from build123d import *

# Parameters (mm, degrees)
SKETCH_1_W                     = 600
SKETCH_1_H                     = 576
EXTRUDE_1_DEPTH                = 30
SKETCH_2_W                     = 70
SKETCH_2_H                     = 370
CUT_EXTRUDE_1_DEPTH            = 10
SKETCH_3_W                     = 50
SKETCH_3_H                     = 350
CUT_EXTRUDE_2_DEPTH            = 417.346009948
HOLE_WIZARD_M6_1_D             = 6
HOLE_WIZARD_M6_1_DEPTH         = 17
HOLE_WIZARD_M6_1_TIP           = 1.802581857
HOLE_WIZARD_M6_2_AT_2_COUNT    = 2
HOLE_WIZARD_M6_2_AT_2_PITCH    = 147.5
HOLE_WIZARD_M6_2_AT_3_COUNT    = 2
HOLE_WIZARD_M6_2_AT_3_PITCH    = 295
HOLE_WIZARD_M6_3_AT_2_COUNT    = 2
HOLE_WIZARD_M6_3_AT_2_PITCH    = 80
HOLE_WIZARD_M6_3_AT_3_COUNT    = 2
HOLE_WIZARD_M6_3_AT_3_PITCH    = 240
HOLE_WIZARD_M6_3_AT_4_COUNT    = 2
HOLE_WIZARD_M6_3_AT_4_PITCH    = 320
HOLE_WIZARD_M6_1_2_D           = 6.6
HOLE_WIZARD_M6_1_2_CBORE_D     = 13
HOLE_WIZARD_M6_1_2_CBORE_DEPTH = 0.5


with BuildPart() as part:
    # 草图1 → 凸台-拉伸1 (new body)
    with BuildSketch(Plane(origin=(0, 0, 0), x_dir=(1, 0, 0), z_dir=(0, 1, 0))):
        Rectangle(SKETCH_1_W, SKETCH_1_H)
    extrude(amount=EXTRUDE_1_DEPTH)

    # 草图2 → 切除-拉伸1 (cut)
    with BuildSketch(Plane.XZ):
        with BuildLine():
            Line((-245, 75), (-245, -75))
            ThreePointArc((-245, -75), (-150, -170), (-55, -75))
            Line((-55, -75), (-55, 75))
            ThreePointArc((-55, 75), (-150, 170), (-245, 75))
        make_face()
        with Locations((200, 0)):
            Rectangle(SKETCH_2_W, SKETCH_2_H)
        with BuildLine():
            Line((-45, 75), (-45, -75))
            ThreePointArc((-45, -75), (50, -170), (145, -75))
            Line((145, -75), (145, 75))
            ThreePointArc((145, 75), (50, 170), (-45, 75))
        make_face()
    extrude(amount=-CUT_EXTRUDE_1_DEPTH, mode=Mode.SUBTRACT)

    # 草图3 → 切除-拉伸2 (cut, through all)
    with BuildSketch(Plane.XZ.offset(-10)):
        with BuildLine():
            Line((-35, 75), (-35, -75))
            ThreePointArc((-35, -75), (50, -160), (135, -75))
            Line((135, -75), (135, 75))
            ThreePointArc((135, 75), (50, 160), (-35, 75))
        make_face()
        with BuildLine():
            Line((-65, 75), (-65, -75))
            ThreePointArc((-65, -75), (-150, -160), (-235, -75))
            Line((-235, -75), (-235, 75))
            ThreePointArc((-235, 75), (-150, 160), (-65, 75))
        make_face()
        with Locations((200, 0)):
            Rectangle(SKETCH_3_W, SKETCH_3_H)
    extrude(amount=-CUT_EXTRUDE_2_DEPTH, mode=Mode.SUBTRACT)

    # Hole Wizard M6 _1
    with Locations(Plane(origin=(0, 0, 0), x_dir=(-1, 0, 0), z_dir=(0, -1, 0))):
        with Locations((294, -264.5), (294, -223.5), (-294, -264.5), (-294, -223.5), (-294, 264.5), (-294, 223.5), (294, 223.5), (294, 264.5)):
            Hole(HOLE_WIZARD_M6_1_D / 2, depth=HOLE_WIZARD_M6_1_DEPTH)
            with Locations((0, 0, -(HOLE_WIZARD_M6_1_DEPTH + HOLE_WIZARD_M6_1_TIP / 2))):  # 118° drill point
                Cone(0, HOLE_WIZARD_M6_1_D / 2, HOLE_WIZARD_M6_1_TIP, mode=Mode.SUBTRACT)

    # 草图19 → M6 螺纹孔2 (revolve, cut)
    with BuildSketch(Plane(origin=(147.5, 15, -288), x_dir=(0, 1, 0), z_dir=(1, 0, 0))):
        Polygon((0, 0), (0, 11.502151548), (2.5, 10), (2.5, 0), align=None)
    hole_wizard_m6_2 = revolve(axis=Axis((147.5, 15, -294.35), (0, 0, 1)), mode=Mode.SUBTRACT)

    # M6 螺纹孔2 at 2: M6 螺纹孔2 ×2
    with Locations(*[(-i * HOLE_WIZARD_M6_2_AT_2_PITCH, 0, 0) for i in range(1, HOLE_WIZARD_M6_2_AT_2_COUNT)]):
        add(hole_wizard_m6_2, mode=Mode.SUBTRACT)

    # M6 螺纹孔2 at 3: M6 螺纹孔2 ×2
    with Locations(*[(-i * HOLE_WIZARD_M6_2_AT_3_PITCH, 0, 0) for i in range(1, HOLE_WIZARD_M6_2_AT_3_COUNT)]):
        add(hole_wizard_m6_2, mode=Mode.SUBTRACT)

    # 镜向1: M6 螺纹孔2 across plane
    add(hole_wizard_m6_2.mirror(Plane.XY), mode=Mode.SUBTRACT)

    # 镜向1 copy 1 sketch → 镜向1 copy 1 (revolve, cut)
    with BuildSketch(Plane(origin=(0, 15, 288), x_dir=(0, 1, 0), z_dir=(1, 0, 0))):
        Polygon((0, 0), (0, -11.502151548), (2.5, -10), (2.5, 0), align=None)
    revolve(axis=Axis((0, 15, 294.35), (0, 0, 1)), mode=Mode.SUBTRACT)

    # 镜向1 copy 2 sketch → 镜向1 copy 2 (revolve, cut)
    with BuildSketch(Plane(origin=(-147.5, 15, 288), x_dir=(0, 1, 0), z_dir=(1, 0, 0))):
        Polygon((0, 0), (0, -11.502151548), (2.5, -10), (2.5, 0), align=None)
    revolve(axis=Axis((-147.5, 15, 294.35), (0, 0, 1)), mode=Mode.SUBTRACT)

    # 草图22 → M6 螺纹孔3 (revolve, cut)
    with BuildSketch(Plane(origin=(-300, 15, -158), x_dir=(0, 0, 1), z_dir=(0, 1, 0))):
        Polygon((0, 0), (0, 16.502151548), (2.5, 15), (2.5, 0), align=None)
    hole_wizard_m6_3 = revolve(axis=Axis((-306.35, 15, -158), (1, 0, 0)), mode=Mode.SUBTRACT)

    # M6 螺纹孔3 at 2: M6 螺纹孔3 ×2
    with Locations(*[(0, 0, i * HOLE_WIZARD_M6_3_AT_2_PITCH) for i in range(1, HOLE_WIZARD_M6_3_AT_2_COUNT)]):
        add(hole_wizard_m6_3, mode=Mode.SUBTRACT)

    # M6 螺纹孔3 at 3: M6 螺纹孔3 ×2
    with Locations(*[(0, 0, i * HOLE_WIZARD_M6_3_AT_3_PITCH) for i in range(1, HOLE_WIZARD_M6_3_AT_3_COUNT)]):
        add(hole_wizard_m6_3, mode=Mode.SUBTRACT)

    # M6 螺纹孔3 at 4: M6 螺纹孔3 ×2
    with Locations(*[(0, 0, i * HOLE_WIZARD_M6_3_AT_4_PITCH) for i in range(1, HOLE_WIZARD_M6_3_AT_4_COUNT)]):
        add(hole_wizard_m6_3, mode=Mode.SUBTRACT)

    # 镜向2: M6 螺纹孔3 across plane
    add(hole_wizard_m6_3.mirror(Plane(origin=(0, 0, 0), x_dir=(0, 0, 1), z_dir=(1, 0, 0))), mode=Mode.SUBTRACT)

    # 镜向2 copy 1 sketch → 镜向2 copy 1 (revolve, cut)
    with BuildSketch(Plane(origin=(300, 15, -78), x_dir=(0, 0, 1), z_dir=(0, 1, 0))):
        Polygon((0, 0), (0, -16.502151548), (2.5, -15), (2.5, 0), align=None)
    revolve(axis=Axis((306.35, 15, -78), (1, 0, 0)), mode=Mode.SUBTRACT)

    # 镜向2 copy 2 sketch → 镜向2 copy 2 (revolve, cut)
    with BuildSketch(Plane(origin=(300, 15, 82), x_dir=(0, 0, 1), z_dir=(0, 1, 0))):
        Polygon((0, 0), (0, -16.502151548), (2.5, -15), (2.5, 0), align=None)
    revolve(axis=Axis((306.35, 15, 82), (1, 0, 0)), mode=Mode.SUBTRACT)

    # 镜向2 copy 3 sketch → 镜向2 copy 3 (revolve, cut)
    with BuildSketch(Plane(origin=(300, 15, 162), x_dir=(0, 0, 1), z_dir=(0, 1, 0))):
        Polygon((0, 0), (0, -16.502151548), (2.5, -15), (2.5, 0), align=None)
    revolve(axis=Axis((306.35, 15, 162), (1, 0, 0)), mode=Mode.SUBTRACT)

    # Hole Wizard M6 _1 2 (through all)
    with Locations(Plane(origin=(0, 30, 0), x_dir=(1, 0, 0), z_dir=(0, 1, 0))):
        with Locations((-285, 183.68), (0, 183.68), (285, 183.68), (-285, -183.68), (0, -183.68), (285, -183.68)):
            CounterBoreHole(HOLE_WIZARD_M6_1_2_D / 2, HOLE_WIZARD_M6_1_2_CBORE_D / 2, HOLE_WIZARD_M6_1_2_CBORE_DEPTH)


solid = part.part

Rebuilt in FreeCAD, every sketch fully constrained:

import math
import FreeCAD as App
import Part
import Sketcher

V = App.Vector
Q = App.Units.Quantity

doc = App.newDocument("Part")
body = doc.addObject("PartDesign::Body", "Body")

sketch1 = body.newObject("Sketcher::SketchObject", "Sketch")
sketch1.AttachmentSupport = (doc.getObject("XZ_Plane"), [""])
sketch1.MapMode = "FlatFace"
sketch1.addGeometry(Part.LineSegment(V(-300, -288, 0), V(-300, 288, 0)), False)
sketch1.addGeometry(Part.LineSegment(V(-300, 288, 0), V(300, 288, 0)), False)
sketch1.addGeometry(Part.LineSegment(V(300, 288, 0), V(300, -288, 0)), False)
sketch1.addGeometry(Part.LineSegment(V(300, -288, 0), V(-300, -288, 0)), False)
sketch1.addConstraint(Sketcher.Constraint("Coincident", 0, 2, 1, 1))
sketch1.addConstraint(Sketcher.Constraint("Coincident", 1, 2, 2, 1))
sketch1.addConstraint(Sketcher.Constraint("Coincident", 2, 2, 3, 1))
sketch1.addConstraint(Sketcher.Constraint("Coincident", 3, 2, 0, 1))
sketch1.addConstraint(Sketcher.Constraint("Vertical", 0))
sketch1.addConstraint(Sketcher.Constraint("Horizontal", 1))
sketch1.addConstraint(Sketcher.Constraint("Vertical", 2))
sketch1.addConstraint(Sketcher.Constraint("Horizontal", 3))
sketch1.addConstraint(Sketcher.Constraint("Symmetric", 0, 2, 2, 2, -1, 1))
sketch1.addConstraint(Sketcher.Constraint("DistanceX", 1, 1, 1, 2, 600.0))
sketch1.addConstraint(Sketcher.Constraint("DistanceY", 0, 1, 0, 2, 576.0))
pad1 = body.newObject("PartDesign::Pad", "Pad")
pad1.Profile = sketch1
pad1.Length = 30
pad1.Reversed = True

sketch2 = body.newObject("Sketcher::SketchObject", "Sketch001")
sketch2.AttachmentSupport = (doc.getObject("XZ_Plane"), [""])
sketch2.MapMode = "FlatFace"
sketch2.addGeometry(Part.LineSegment(V(-245, 75, 0), V(-245, -75, 0)), False)
sketch2.addGeometry(Part.ArcOfCircle(Part.Circle(V(-150, -75, 0), V(0, 0, 1), 95), math.radians(180), math.radians(360)), False)
sketch2.addGeometry(Part.LineSegment(V(-55, -75, 0), V(-55, 75, 0)), False)
sketch2.addGeometry(Part.ArcOfCircle(Part.Circle(V(-150, 75, 0), V(0, 0, 1), 95), math.radians(0), math.radians(180)), False)
sketch2.addGeometry(Part.LineSegment(V(165, 185, 0), V(165, -185, 0)), False)
sketch2.addGeometry(Part.LineSegment(V(165, -185, 0), V(235, -185, 0)), False)
sketch2.addGeometry(Part.LineSegment(V(235, -185, 0), V(235, 185, 0)), False)
sketch2.addGeometry(Part.LineSegment(V(235, 185, 0), V(165, 185, 0)), False)
sketch2.addGeometry(Part.LineSegment(V(-45, 75, 0), V(-45, -75, 0)), False)
sketch2.addGeometry(Part.ArcOfCircle(Part.Circle(V(50, -75, 0), V(0, 0, 1), 95), math.radians(180), math.radians(360)), False)
sketch2.addGeometry(Part.LineSegment(V(145, -75, 0), V(145, 75, 0)), False)
sketch2.addGeometry(Part.ArcOfCircle(Part.Circle(V(50, 75, 0), V(0, 0, 1), 95), math.radians(0), math.radians(180)), False)
sketch2.addConstraint(Sketcher.Constraint("Tangent", 0, 2, 1, 1))
sketch2.addConstraint(Sketcher.Constraint("Tangent", 1, 2, 2, 1))
sketch2.addConstraint(Sketcher.Constraint("Tangent", 2, 2, 3, 1))
sketch2.addConstraint(Sketcher.Constraint("Tangent", 3, 2, 0, 1))
sketch2.addConstraint(Sketcher.Constraint("Coincident", 4, 2, 5, 1))
sketch2.addConstraint(Sketcher.Constraint("Coincident", 5, 2, 6, 1))
sketch2.addConstraint(Sketcher.Constraint("Coincident", 6, 2, 7, 1))
sketch2.addConstraint(Sketcher.Constraint("Coincident", 7, 2, 4, 1))
sketch2.addConstraint(Sketcher.Constraint("Tangent", 8, 2, 9, 1))
sketch2.addConstraint(Sketcher.Constraint("Tangent", 9, 2, 10, 1))
sketch2.addConstraint(Sketcher.Constraint("Tangent", 10, 2, 11, 1))
sketch2.addConstraint(Sketcher.Constraint("Tangent", 11, 2, 8, 1))
sketch2.addConstraint(Sketcher.Constraint("Vertical", 0))
sketch2.addConstraint(Sketcher.Constraint("Vertical", 2))
sketch2.addConstraint(Sketcher.Constraint("Vertical", 4))
sketch2.addConstraint(Sketcher.Constraint("Horizontal", 5))
sketch2.addConstraint(Sketcher.Constraint("Vertical", 6))
sketch2.addConstraint(Sketcher.Constraint("Horizontal", 7))
sketch2.addConstraint(Sketcher.Constraint("Vertical", 8))
sketch2.addConstraint(Sketcher.Constraint("Vertical", 10))
sketch2.addConstraint(Sketcher.Constraint("Equal", 3, 9))
sketch2.addConstraint(Sketcher.Constraint("Horizontal", 1, 3, 9, 3))
sketch2.addConstraint(Sketcher.Constraint("Horizontal", 3, 3, 11, 3))
sketch2.addConstraint(Sketcher.Constraint("Radius", 1, 95.0))
sketch2.addConstraint(Sketcher.Constraint("DistanceX", 5, 1, 5, 2, 70.0))
sketch2.addConstraint(Sketcher.Constraint("DistanceY", 0, 2, 0, 1, 150.0))
sketch2.addConstraint(Sketcher.Constraint("DistanceY", 4, 2, 4, 1, 370.0))
sketch2.addConstraint(Sketcher.Constraint("DistanceX", 1, 3, -1, 1, 150.0))
sketch2.addConstraint(Sketcher.Constraint("DistanceY", 1, 3, -1, 1, 75.0))
sketch2.addConstraint(Sketcher.Constraint("DistanceX", -1, 1, 9, 3, 50.0))
sketch2.addConstraint(Sketcher.Constraint("DistanceX", -1, 1, 4, 2, 165.0))
sketch2.addConstraint(Sketcher.Constraint("DistanceY", 4, 2, -1, 1, 185.0))
pocket1 = body.newObject("PartDesign::Pocket", "Pocket")
pocket1.Profile = sketch2
pocket1.Length = 10

sketch3 = body.newObject("Sketcher::SketchObject", "Sketch002")
sketch3.AttachmentSupport = (doc.getObject("XZ_Plane"), [""])
sketch3.MapMode = "FlatFace"
sketch3.AttachmentOffset = App.Placement(V(0, 0, -10), App.Rotation())
sketch3.addGeometry(Part.LineSegment(V(-35, 75, 0), V(-35, -75, 0)), False)
sketch3.addGeometry(Part.ArcOfCircle(Part.Circle(V(50, -75, 0), V(0, 0, 1), 85), math.radians(180), math.radians(360)), False)
sketch3.addGeometry(Part.LineSegment(V(135, -75, 0), V(135, 75, 0)), False)
sketch3.addGeometry(Part.ArcOfCircle(Part.Circle(V(50, 75, 0), V(0, 0, 1), 85), math.radians(0), math.radians(180)), False)
sketch3.addGeometry(Part.LineSegment(V(-65, -75, 0), V(-65, 75, 0)), False)
sketch3.addGeometry(Part.ArcOfCircle(Part.Circle(V(-150, 75, 0), V(0, 0, 1), 85), math.radians(0), math.radians(180)), False)
sketch3.addGeometry(Part.LineSegment(V(-235, 75, 0), V(-235, -75, 0)), False)
sketch3.addGeometry(Part.ArcOfCircle(Part.Circle(V(-150, -75, 0), V(0, 0, 1), 85), math.radians(180), math.radians(360)), False)
sketch3.addGeometry(Part.LineSegment(V(175, 175, 0), V(175, -175, 0)), False)
sketch3.addGeometry(Part.LineSegment(V(175, -175, 0), V(225, -175, 0)), False)
sketch3.addGeometry(Part.LineSegment(V(225, -175, 0), V(225, 175, 0)), False)
sketch3.addGeometry(Part.LineSegment(V(225, 175, 0), V(175, 175, 0)), False)
sketch3.addConstraint(Sketcher.Constraint("Tangent", 0, 2, 1, 1))
sketch3.addConstraint(Sketcher.Constraint("Tangent", 1, 2, 2, 1))
sketch3.addConstraint(Sketcher.Constraint("Tangent", 2, 2, 3, 1))
sketch3.addConstraint(Sketcher.Constraint("Tangent", 3, 2, 0, 1))
sketch3.addConstraint(Sketcher.Constraint("Tangent", 4, 2, 5, 1))
sketch3.addConstraint(Sketcher.Constraint("Tangent", 5, 2, 6, 1))
sketch3.addConstraint(Sketcher.Constraint("Tangent", 6, 2, 7, 1))
sketch3.addConstraint(Sketcher.Constraint("Tangent", 7, 2, 4, 1))
sketch3.addConstraint(Sketcher.Constraint("Coincident", 8, 2, 9, 1))
sketch3.addConstraint(Sketcher.Constraint("Coincident", 9, 2, 10, 1))
sketch3.addConstraint(Sketcher.Constraint("Coincident", 10, 2, 11, 1))
sketch3.addConstraint(Sketcher.Constraint("Coincident", 11, 2, 8, 1))
sketch3.addConstraint(Sketcher.Constraint("Vertical", 0))
sketch3.addConstraint(Sketcher.Constraint("Vertical", 2))
sketch3.addConstraint(Sketcher.Constraint("Vertical", 4))
sketch3.addConstraint(Sketcher.Constraint("Vertical", 6))
sketch3.addConstraint(Sketcher.Constraint("Vertical", 8))
sketch3.addConstraint(Sketcher.Constraint("Horizontal", 9))
sketch3.addConstraint(Sketcher.Constraint("Vertical", 10))
sketch3.addConstraint(Sketcher.Constraint("Horizontal", 11))
sketch3.addConstraint(Sketcher.Constraint("Equal", 3, 5))
sketch3.addConstraint(Sketcher.Constraint("Horizontal", 3, 3, 5, 3))
sketch3.addConstraint(Sketcher.Constraint("Horizontal", 1, 3, 7, 3))
sketch3.addConstraint(Sketcher.Constraint("Radius", 1, 85.0))
sketch3.addConstraint(Sketcher.Constraint("DistanceX", 9, 1, 9, 2, 50.0))
sketch3.addConstraint(Sketcher.Constraint("DistanceY", 0, 2, 0, 1, 150.0))
sketch3.addConstraint(Sketcher.Constraint("DistanceY", 8, 2, 8, 1, 350.0))
sketch3.addConstraint(Sketcher.Constraint("DistanceX", -1, 1, 1, 3, 50.0))
sketch3.addConstraint(Sketcher.Constraint("DistanceY", 1, 3, -1, 1, 75.0))
sketch3.addConstraint(Sketcher.Constraint("DistanceX", 5, 3, -1, 1, 150.0))
sketch3.addConstraint(Sketcher.Constraint("DistanceX", -1, 1, 8, 2, 175.0))
sketch3.addConstraint(Sketcher.Constraint("DistanceY", 8, 2, -1, 1, 175.0))
pocket2 = body.newObject("PartDesign::Pocket", "Pocket001")
pocket2.Profile = sketch3
pocket2.Type = "ThroughAll"

sketch4 = body.newObject("Sketcher::SketchObject", "Sketch003")
sketch4.AttachmentSupport = (doc.getObject("XZ_Plane"), [""])
sketch4.MapMode = "FlatFace"
sketch4.addGeometry(Part.Circle(V(-294, 264.5, 0), V(0, 0, 1), 3), False)
sketch4.addGeometry(Part.Circle(V(-294, 223.5, 0), V(0, 0, 1), 3), False)
sketch4.addGeometry(Part.Circle(V(294, 264.5, 0), V(0, 0, 1), 3), False)
sketch4.addGeometry(Part.Circle(V(294, 223.5, 0), V(0, 0, 1), 3), False)
sketch4.addGeometry(Part.Circle(V(294, -264.5, 0), V(0, 0, 1), 3), False)
sketch4.addGeometry(Part.Circle(V(294, -223.5, 0), V(0, 0, 1), 3), False)
sketch4.addGeometry(Part.Circle(V(-294, -223.5, 0), V(0, 0, 1), 3), False)
sketch4.addGeometry(Part.Circle(V(-294, -264.5, 0), V(0, 0, 1), 3), False)
sketch4.addConstraint(Sketcher.Constraint("Equal", 0, 1))
sketch4.addConstraint(Sketcher.Constraint("Equal", 1, 2))
sketch4.addConstraint(Sketcher.Constraint("Equal", 2, 3))
sketch4.addConstraint(Sketcher.Constraint("Equal", 3, 4))
sketch4.addConstraint(Sketcher.Constraint("Equal", 4, 5))
sketch4.addConstraint(Sketcher.Constraint("Equal", 5, 6))
sketch4.addConstraint(Sketcher.Constraint("Equal", 6, 7))
sketch4.addConstraint(Sketcher.Constraint("Symmetric", 0, 3, 4, 3, -1, 1))
sketch4.addConstraint(Sketcher.Constraint("Symmetric", 1, 3, 5, 3, -1, 1))
sketch4.addConstraint(Sketcher.Constraint("Symmetric", 3, 3, 6, 3, -1, 1))
sketch4.addConstraint(Sketcher.Constraint("Symmetric", 2, 3, 7, 3, -1, 1))
sketch4.addConstraint(Sketcher.Constraint("Symmetric", 0, 3, 2, 3, -2))
sketch4.addConstraint(Sketcher.Constraint("Symmetric", 1, 3, 3, 3, -2))
sketch4.addConstraint(Sketcher.Constraint("Vertical", 0, 3, 1, 3))
sketch4.addConstraint(Sketcher.Constraint("Diameter", 0, 6.0))
sketch4.addConstraint(Sketcher.Constraint("DistanceX", 0, 3, -1, 1, 294.0))
sketch4.addConstraint(Sketcher.Constraint("DistanceY", 1, 3, 0, 3, 41.0))
sketch4.addConstraint(Sketcher.Constraint("DistanceY", 4, 3, 3, 3, 488.0))
doc.recompute()
hole = body.newObject("PartDesign::Hole", "Hole")
hole.Profile = sketch4
hole.ThreadType = "None"
hole.Diameter = 6
hole.DepthType = "Dimension"
hole.Depth = 17
hole.DrillPoint = "Angled"
hole.DrillPointAngle = 118

sketch5 = body.newObject("Sketcher::SketchObject", "Sketch004")
sketch5.AttachmentSupport = (doc.getObject("YZ_Plane"), [""])
sketch5.MapMode = "FlatFace"
sketch5.AttachmentOffset = App.Placement(V(0, 0, 147.5), App.Rotation())
sketch5.addGeometry(Part.LineSegment(V(15, -276.5, 0), V(15, -288, 0)), False)
sketch5.addGeometry(Part.LineSegment(V(15, -288, 0), V(17.5, -288, 0)), False)
sketch5.addGeometry(Part.LineSegment(V(17.5, -288, 0), V(17.5, -278, 0)), False)
sketch5.addGeometry(Part.LineSegment(V(17.5, -278, 0), V(15, -276.5, 0)), False)
sketch5.addGeometry(Part.LineSegment(V(15, -288, 0), V(15, -276.5, 0)), True)
sketch5.addConstraint(Sketcher.Constraint("Coincident", 0, 2, 1, 1))
sketch5.addConstraint(Sketcher.Constraint("Coincident", 1, 2, 2, 1))
sketch5.addConstraint(Sketcher.Constraint("Coincident", 2, 2, 3, 1))
sketch5.addConstraint(Sketcher.Constraint("Coincident", 3, 2, 0, 1))
sketch5.addConstraint(Sketcher.Constraint("Vertical", 0))
sketch5.addConstraint(Sketcher.Constraint("Horizontal", 1))
sketch5.addConstraint(Sketcher.Constraint("Vertical", 2))
sketch5.addConstraint(Sketcher.Constraint("Vertical", 4))
sketch5.addConstraint(Sketcher.Constraint("Coincident", 4, 1, 0, 2))
sketch5.addConstraint(Sketcher.Constraint("Equal", 0, 4))
sketch5.addConstraint(Sketcher.Constraint("DistanceY", 2, 1, 2, 2, 10.0))
sketch5.addConstraint(Sketcher.Constraint("Angle", 3, Q("149 deg")))
sketch5.addConstraint(Sketcher.Constraint("DistanceX", 1, 1, 1, 2, 2.5))
sketch5.addConstraint(Sketcher.Constraint("DistanceX", -1, 1, 0, 2, 15.0))
sketch5.addConstraint(Sketcher.Constraint("DistanceY", 0, 2, -1, 1, 288.0))
groove = body.newObject("PartDesign::Groove", "Groove")
groove.Profile = sketch5
groove.ReferenceAxis = (sketch5, ["Axis0"])
groove.Angle = 360
doc.recompute()

linearpattern = body.newObject("PartDesign::LinearPattern", "LinearPattern")
linearpattern.Originals = [groove]
linearpattern.Direction = (doc.getObject("X_Axis"), [""])
linearpattern.Mode = "offset"
linearpattern.Offset = 147.5
linearpattern.Occurrences = 2
linearpattern.Reversed = True
body.Tip = linearpattern
doc.recompute()

linearpattern2 = body.newObject("PartDesign::LinearPattern", "LinearPattern001")
linearpattern2.Originals = [groove]
linearpattern2.Direction = (doc.getObject("X_Axis"), [""])
linearpattern2.Mode = "offset"
linearpattern2.Offset = 295
linearpattern2.Occurrences = 2
linearpattern2.Reversed = True
body.Tip = linearpattern2
doc.recompute()

mirrored = body.newObject("PartDesign::Mirrored", "Mirrored")
mirrored.Originals = [groove]
mirrored.MirrorPlane = (doc.getObject("XY_Plane"), [""])
body.Tip = mirrored

sketch6 = body.newObject("Sketcher::SketchObject", "Sketch005")
sketch6.AttachmentSupport = (doc.getObject("YZ_Plane"), [""])
sketch6.MapMode = "FlatFace"
sketch6.addGeometry(Part.LineSegment(V(15, 288, 0), V(15, 276.5, 0)), False)
sketch6.addGeometry(Part.LineSegment(V(15, 276.5, 0), V(17.5, 278, 0)), False)
sketch6.addGeometry(Part.LineSegment(V(17.5, 278, 0), V(17.5, 288, 0)), False)
sketch6.addGeometry(Part.LineSegment(V(17.5, 288, 0), V(15, 288, 0)), False)
sketch6.addGeometry(Part.LineSegment(V(15, 276.5, 0), V(15, 288, 0)), True)
sketch6.addConstraint(Sketcher.Constraint("Coincident", 0, 2, 1, 1))
sketch6.addConstraint(Sketcher.Constraint("Coincident", 1, 2, 2, 1))
sketch6.addConstraint(Sketcher.Constraint("Coincident", 2, 2, 3, 1))
sketch6.addConstraint(Sketcher.Constraint("Coincident", 3, 2, 0, 1))
sketch6.addConstraint(Sketcher.Constraint("Vertical", 0))
sketch6.addConstraint(Sketcher.Constraint("Vertical", 2))
sketch6.addConstraint(Sketcher.Constraint("Horizontal", 3))
sketch6.addConstraint(Sketcher.Constraint("Vertical", 4))
sketch6.addConstraint(Sketcher.Constraint("Coincident", 4, 1, 0, 2))
sketch6.addConstraint(Sketcher.Constraint("Horizontal", 2, 2, 4, 2))
sketch6.addConstraint(Sketcher.Constraint("DistanceY", 2, 1, 2, 2, 10.0))
sketch6.addConstraint(Sketcher.Constraint("Angle", 1, Q("31 deg")))
sketch6.addConstraint(Sketcher.Constraint("DistanceX", 3, 2, 3, 1, 2.5))
sketch6.addConstraint(Sketcher.Constraint("DistanceX", -1, 1, 0, 2, 15.0))
sketch6.addConstraint(Sketcher.Constraint("DistanceY", -1, 1, 1, 2, 278.0))
groove2 = body.newObject("PartDesign::Groove", "Groove001")
groove2.Profile = sketch6
groove2.ReferenceAxis = (sketch6, ["Axis0"])
groove2.Angle = 360

sketch7 = body.newObject("Sketcher::SketchObject", "Sketch006")
sketch7.AttachmentSupport = (doc.getObject("YZ_Plane"), [""])
sketch7.MapMode = "FlatFace"
sketch7.AttachmentOffset = App.Placement(V(0, 0, -147.5), App.Rotation())
sketch7.addGeometry(Part.LineSegment(V(15, 288, 0), V(15, 276.5, 0)), False)
sketch7.addGeometry(Part.LineSegment(V(15, 276.5, 0), V(17.5, 278, 0)), False)
sketch7.addGeometry(Part.LineSegment(V(17.5, 278, 0), V(17.5, 288, 0)), False)
sketch7.addGeometry(Part.LineSegment(V(17.5, 288, 0), V(15, 288, 0)), False)
sketch7.addGeometry(Part.LineSegment(V(15, 276.5, 0), V(15, 288, 0)), True)
sketch7.addConstraint(Sketcher.Constraint("Coincident", 0, 2, 1, 1))
sketch7.addConstraint(Sketcher.Constraint("Coincident", 1, 2, 2, 1))
sketch7.addConstraint(Sketcher.Constraint("Coincident", 2, 2, 3, 1))
sketch7.addConstraint(Sketcher.Constraint("Coincident", 3, 2, 0, 1))
sketch7.addConstraint(Sketcher.Constraint("Vertical", 0))
sketch7.addConstraint(Sketcher.Constraint("Vertical", 2))
sketch7.addConstraint(Sketcher.Constraint("Horizontal", 3))
sketch7.addConstraint(Sketcher.Constraint("Vertical", 4))
sketch7.addConstraint(Sketcher.Constraint("Coincident", 4, 1, 0, 2))
sketch7.addConstraint(Sketcher.Constraint("Horizontal", 2, 2, 4, 2))
sketch7.addConstraint(Sketcher.Constraint("DistanceY", 2, 1, 2, 2, 10.0))
sketch7.addConstraint(Sketcher.Constraint("Angle", 1, Q("31 deg")))
sketch7.addConstraint(Sketcher.Constraint("DistanceX", 3, 2, 3, 1, 2.5))
sketch7.addConstraint(Sketcher.Constraint("DistanceX", -1, 1, 0, 2, 15.0))
sketch7.addConstraint(Sketcher.Constraint("DistanceY", -1, 1, 1, 2, 278.0))
groove3 = body.newObject("PartDesign::Groove", "Groove002")
groove3.Profile = sketch7
groove3.ReferenceAxis = (sketch7, ["Axis0"])
groove3.Angle = 360

sketch8 = body.newObject("Sketcher::SketchObject", "Sketch007")
sketch8.AttachmentSupport = (doc.getObject("XZ_Plane"), [""])
sketch8.MapMode = "FlatFace"
sketch8.AttachmentOffset = App.Placement(V(0, 0, -15), App.Rotation())
sketch8.addGeometry(Part.LineSegment(V(-283.5, -158, 0), V(-300, -158, 0)), False)
sketch8.addGeometry(Part.LineSegment(V(-300, -158, 0), V(-300, -155.5, 0)), False)
sketch8.addGeometry(Part.LineSegment(V(-300, -155.5, 0), V(-285, -155.5, 0)), False)
sketch8.addGeometry(Part.LineSegment(V(-285, -155.5, 0), V(-283.5, -158, 0)), False)
sketch8.addGeometry(Part.LineSegment(V(-300, -158, 0), V(-283.5, -158, 0)), True)
sketch8.addConstraint(Sketcher.Constraint("Coincident", 0, 2, 1, 1))
sketch8.addConstraint(Sketcher.Constraint("Coincident", 1, 2, 2, 1))
sketch8.addConstraint(Sketcher.Constraint("Coincident", 2, 2, 3, 1))
sketch8.addConstraint(Sketcher.Constraint("Coincident", 3, 2, 0, 1))
sketch8.addConstraint(Sketcher.Constraint("Horizontal", 0))
sketch8.addConstraint(Sketcher.Constraint("Vertical", 1))
sketch8.addConstraint(Sketcher.Constraint("Horizontal", 2))
sketch8.addConstraint(Sketcher.Constraint("Horizontal", 4))
sketch8.addConstraint(Sketcher.Constraint("Coincident", 4, 1, 0, 2))
sketch8.addConstraint(Sketcher.Constraint("Equal", 0, 4))
sketch8.addConstraint(Sketcher.Constraint("DistanceX", 2, 1, 2, 2, 15.0))
sketch8.addConstraint(Sketcher.Constraint("Angle", 3, Q("-59 deg")))
sketch8.addConstraint(Sketcher.Constraint("DistanceY", 1, 1, 1, 2, 2.5))
sketch8.addConstraint(Sketcher.Constraint("DistanceX", 0, 2, -1, 1, 300.0))
sketch8.addConstraint(Sketcher.Constraint("DistanceY", 0, 2, -1, 1, 158.0))
groove4 = body.newObject("PartDesign::Groove", "Groove003")
groove4.Profile = sketch8
groove4.ReferenceAxis = (sketch8, ["Axis0"])
groove4.Angle = 360
doc.recompute()

linearpattern3 = body.newObject("PartDesign::LinearPattern", "LinearPattern002")
linearpattern3.Originals = [groove4]
linearpattern3.Direction = (doc.getObject("Z_Axis"), [""])
linearpattern3.Mode = "offset"
linearpattern3.Offset = 80
linearpattern3.Occurrences = 2
body.Tip = linearpattern3
doc.recompute()

linearpattern4 = body.newObject("PartDesign::LinearPattern", "LinearPattern003")
linearpattern4.Originals = [groove4]
linearpattern4.Direction = (doc.getObject("Z_Axis"), [""])
linearpattern4.Mode = "offset"
linearpattern4.Offset = 240
linearpattern4.Occurrences = 2
body.Tip = linearpattern4
doc.recompute()

linearpattern5 = body.newObject("PartDesign::LinearPattern", "LinearPattern004")
linearpattern5.Originals = [groove4]
linearpattern5.Direction = (doc.getObject("Z_Axis"), [""])
linearpattern5.Mode = "offset"
linearpattern5.Offset = 320
linearpattern5.Occurrences = 2
body.Tip = linearpattern5
doc.recompute()

mirrored2 = body.newObject("PartDesign::Mirrored", "Mirrored001")
mirrored2.Originals = [groove4]
mirrored2.MirrorPlane = (doc.getObject("YZ_Plane"), [""])
body.Tip = mirrored2

sketch9 = body.newObject("Sketcher::SketchObject", "Sketch008")
sketch9.AttachmentSupport = (doc.getObject("XZ_Plane"), [""])
sketch9.MapMode = "FlatFace"
sketch9.AttachmentOffset = App.Placement(V(0, 0, -15), App.Rotation())
sketch9.addGeometry(Part.LineSegment(V(300, -78, 0), V(283.5, -78, 0)), False)
sketch9.addGeometry(Part.LineSegment(V(283.5, -78, 0), V(285, -75.5, 0)), False)
sketch9.addGeometry(Part.LineSegment(V(285, -75.5, 0), V(300, -75.5, 0)), False)
sketch9.addGeometry(Part.LineSegment(V(300, -75.5, 0), V(300, -78, 0)), False)
sketch9.addGeometry(Part.LineSegment(V(283.5, -78, 0), V(300, -78, 0)), True)
sketch9.addConstraint(Sketcher.Constraint("Coincident", 0, 2, 1, 1))
sketch9.addConstraint(Sketcher.Constraint("Coincident", 1, 2, 2, 1))
sketch9.addConstraint(Sketcher.Constraint("Coincident", 2, 2, 3, 1))
sketch9.addConstraint(Sketcher.Constraint("Coincident", 3, 2, 0, 1))
sketch9.addConstraint(Sketcher.Constraint("Horizontal", 0))
sketch9.addConstraint(Sketcher.Constraint("Horizontal", 2))
sketch9.addConstraint(Sketcher.Constraint("Vertical", 3))
sketch9.addConstraint(Sketcher.Constraint("Horizontal", 4))
sketch9.addConstraint(Sketcher.Constraint("Coincident", 4, 1, 0, 2))
sketch9.addConstraint(Sketcher.Constraint("Vertical", 2, 2, 4, 2))
sketch9.addConstraint(Sketcher.Constraint("DistanceX", 2, 1, 2, 2, 15.0))
sketch9.addConstraint(Sketcher.Constraint("Angle", 1, Q("59 deg")))
sketch9.addConstraint(Sketcher.Constraint("DistanceY", 3, 2, 3, 1, 2.5))
sketch9.addConstraint(Sketcher.Constraint("DistanceY", 0, 2, -1, 1, 78.0))
sketch9.addConstraint(Sketcher.Constraint("DistanceX", -1, 1, 1, 2, 285.0))
groove5 = body.newObject("PartDesign::Groove", "Groove004")
groove5.Profile = sketch9
groove5.ReferenceAxis = (sketch9, ["Axis0"])
groove5.Angle = 360

sketch10 = body.newObject("Sketcher::SketchObject", "Sketch009")
sketch10.AttachmentSupport = (doc.getObject("XZ_Plane"), [""])
sketch10.MapMode = "FlatFace"
sketch10.AttachmentOffset = App.Placement(V(0, 0, -15), App.Rotation())
sketch10.addGeometry(Part.LineSegment(V(300, 82, 0), V(283.5, 82, 0)), False)
sketch10.addGeometry(Part.LineSegment(V(283.5, 82, 0), V(285, 84.5, 0)), False)
sketch10.addGeometry(Part.LineSegment(V(285, 84.5, 0), V(300, 84.5, 0)), False)
sketch10.addGeometry(Part.LineSegment(V(300, 84.5, 0), V(300, 82, 0)), False)
sketch10.addGeometry(Part.LineSegment(V(283.5, 82, 0), V(300, 82, 0)), True)
sketch10.addConstraint(Sketcher.Constraint("Coincident", 0, 2, 1, 1))
sketch10.addConstraint(Sketcher.Constraint("Coincident", 1, 2, 2, 1))
sketch10.addConstraint(Sketcher.Constraint("Coincident", 2, 2, 3, 1))
sketch10.addConstraint(Sketcher.Constraint("Coincident", 3, 2, 0, 1))
sketch10.addConstraint(Sketcher.Constraint("Horizontal", 0))
sketch10.addConstraint(Sketcher.Constraint("Horizontal", 2))
sketch10.addConstraint(Sketcher.Constraint("Vertical", 3))
sketch10.addConstraint(Sketcher.Constraint("Horizontal", 4))
sketch10.addConstraint(Sketcher.Constraint("Coincident", 4, 1, 0, 2))
sketch10.addConstraint(Sketcher.Constraint("Vertical", 2, 2, 4, 2))
sketch10.addConstraint(Sketcher.Constraint("DistanceX", 2, 1, 2, 2, 15.0))
sketch10.addConstraint(Sketcher.Constraint("Angle", 1, Q("59 deg")))
sketch10.addConstraint(Sketcher.Constraint("DistanceY", 3, 2, 3, 1, 2.5))
sketch10.addConstraint(Sketcher.Constraint("DistanceY", -1, 1, 0, 2, 82.0))
sketch10.addConstraint(Sketcher.Constraint("DistanceX", -1, 1, 1, 2, 285.0))
groove6 = body.newObject("PartDesign::Groove", "Groove005")
groove6.Profile = sketch10
groove6.ReferenceAxis = (sketch10, ["Axis0"])
groove6.Angle = 360

sketch11 = body.newObject("Sketcher::SketchObject", "Sketch010")
sketch11.AttachmentSupport = (doc.getObject("XZ_Plane"), [""])
sketch11.MapMode = "FlatFace"
sketch11.AttachmentOffset = App.Placement(V(0, 0, -15), App.Rotation())
sketch11.addGeometry(Part.LineSegment(V(300, 162, 0), V(283.5, 162, 0)), False)
sketch11.addGeometry(Part.LineSegment(V(283.5, 162, 0), V(285, 164.5, 0)), False)
sketch11.addGeometry(Part.LineSegment(V(285, 164.5, 0), V(300, 164.5, 0)), False)
sketch11.addGeometry(Part.LineSegment(V(300, 164.5, 0), V(300, 162, 0)), False)
sketch11.addGeometry(Part.LineSegment(V(283.5, 162, 0), V(300, 162, 0)), True)
sketch11.addConstraint(Sketcher.Constraint("Coincident", 0, 2, 1, 1))
sketch11.addConstraint(Sketcher.Constraint("Coincident", 1, 2, 2, 1))
sketch11.addConstraint(Sketcher.Constraint("Coincident", 2, 2, 3, 1))
sketch11.addConstraint(Sketcher.Constraint("Coincident", 3, 2, 0, 1))
sketch11.addConstraint(Sketcher.Constraint("Horizontal", 0))
sketch11.addConstraint(Sketcher.Constraint("Horizontal", 2))
sketch11.addConstraint(Sketcher.Constraint("Vertical", 3))
sketch11.addConstraint(Sketcher.Constraint("Horizontal", 4))
sketch11.addConstraint(Sketcher.Constraint("Coincident", 4, 1, 0, 2))
sketch11.addConstraint(Sketcher.Constraint("Vertical", 2, 2, 4, 2))
sketch11.addConstraint(Sketcher.Constraint("DistanceX", 2, 1, 2, 2, 15.0))
sketch11.addConstraint(Sketcher.Constraint("Angle", 1, Q("59 deg")))
sketch11.addConstraint(Sketcher.Constraint("DistanceY", 3, 2, 3, 1, 2.5))
sketch11.addConstraint(Sketcher.Constraint("DistanceY", -1, 1, 0, 2, 162.0))
sketch11.addConstraint(Sketcher.Constraint("DistanceX", -1, 1, 1, 2, 285.0))
groove7 = body.newObject("PartDesign::Groove", "Groove006")
groove7.Profile = sketch11
groove7.ReferenceAxis = (sketch11, ["Axis0"])
groove7.Angle = 360

sketch12 = body.newObject("Sketcher::SketchObject", "Sketch011")
sketch12.AttachmentSupport = (doc.getObject("XZ_Plane"), [""])
sketch12.MapMode = "FlatFace"
sketch12.AttachmentOffset = App.Placement(V(0, 0, -30), App.Rotation())
sketch12.addGeometry(Part.Circle(V(-285, -183.7, 0), V(0, 0, 1), 3.3), False)
sketch12.addGeometry(Part.Circle(V(0, -183.7, 0), V(0, 0, 1), 3.3), False)
sketch12.addGeometry(Part.Circle(V(285, -183.7, 0), V(0, 0, 1), 3.3), False)
sketch12.addGeometry(Part.Circle(V(-285, 183.7, 0), V(0, 0, 1), 3.3), False)
sketch12.addGeometry(Part.Circle(V(0, 183.7, 0), V(0, 0, 1), 3.3), False)
sketch12.addGeometry(Part.Circle(V(285, 183.7, 0), V(0, 0, 1), 3.3), False)
sketch12.addConstraint(Sketcher.Constraint("Equal", 0, 1))
sketch12.addConstraint(Sketcher.Constraint("Equal", 1, 2))
sketch12.addConstraint(Sketcher.Constraint("Equal", 2, 3))
sketch12.addConstraint(Sketcher.Constraint("Equal", 3, 4))
sketch12.addConstraint(Sketcher.Constraint("Equal", 4, 5))
sketch12.addConstraint(Sketcher.Constraint("Symmetric", 2, 3, 3, 3, -1, 1))
sketch12.addConstraint(Sketcher.Constraint("Symmetric", 1, 3, 4, 3, -1, 1))
sketch12.addConstraint(Sketcher.Constraint("Symmetric", 0, 3, 5, 3, -1, 1))
sketch12.addConstraint(Sketcher.Constraint("Symmetric", 0, 3, 2, 3, -2))
sketch12.addConstraint(Sketcher.Constraint("PointOnObject", 1, 3, -2))
sketch12.addConstraint(Sketcher.Constraint("Horizontal", 0, 3, 1, 3))
sketch12.addConstraint(Sketcher.Constraint("Diameter", 0, 6.6))
sketch12.addConstraint(Sketcher.Constraint("DistanceX", 0, 3, -1, 1, 285.0))
sketch12.addConstraint(Sketcher.Constraint("DistanceY", 0, 3, -1, 1, 183.68))
doc.recompute()
hole2 = body.newObject("PartDesign::Hole", "Hole001")
hole2.Profile = sketch12
hole2.ThreadType = "None"
hole2.Diameter = 6.6
hole2.DepthType = "ThroughAll"
hole2.HoleCutType = "Counterbore"
hole2.HoleCutDiameter = 13
hole2.HoleCutDepth = 0.5
hole2.Reversed = True

doc.recompute()
